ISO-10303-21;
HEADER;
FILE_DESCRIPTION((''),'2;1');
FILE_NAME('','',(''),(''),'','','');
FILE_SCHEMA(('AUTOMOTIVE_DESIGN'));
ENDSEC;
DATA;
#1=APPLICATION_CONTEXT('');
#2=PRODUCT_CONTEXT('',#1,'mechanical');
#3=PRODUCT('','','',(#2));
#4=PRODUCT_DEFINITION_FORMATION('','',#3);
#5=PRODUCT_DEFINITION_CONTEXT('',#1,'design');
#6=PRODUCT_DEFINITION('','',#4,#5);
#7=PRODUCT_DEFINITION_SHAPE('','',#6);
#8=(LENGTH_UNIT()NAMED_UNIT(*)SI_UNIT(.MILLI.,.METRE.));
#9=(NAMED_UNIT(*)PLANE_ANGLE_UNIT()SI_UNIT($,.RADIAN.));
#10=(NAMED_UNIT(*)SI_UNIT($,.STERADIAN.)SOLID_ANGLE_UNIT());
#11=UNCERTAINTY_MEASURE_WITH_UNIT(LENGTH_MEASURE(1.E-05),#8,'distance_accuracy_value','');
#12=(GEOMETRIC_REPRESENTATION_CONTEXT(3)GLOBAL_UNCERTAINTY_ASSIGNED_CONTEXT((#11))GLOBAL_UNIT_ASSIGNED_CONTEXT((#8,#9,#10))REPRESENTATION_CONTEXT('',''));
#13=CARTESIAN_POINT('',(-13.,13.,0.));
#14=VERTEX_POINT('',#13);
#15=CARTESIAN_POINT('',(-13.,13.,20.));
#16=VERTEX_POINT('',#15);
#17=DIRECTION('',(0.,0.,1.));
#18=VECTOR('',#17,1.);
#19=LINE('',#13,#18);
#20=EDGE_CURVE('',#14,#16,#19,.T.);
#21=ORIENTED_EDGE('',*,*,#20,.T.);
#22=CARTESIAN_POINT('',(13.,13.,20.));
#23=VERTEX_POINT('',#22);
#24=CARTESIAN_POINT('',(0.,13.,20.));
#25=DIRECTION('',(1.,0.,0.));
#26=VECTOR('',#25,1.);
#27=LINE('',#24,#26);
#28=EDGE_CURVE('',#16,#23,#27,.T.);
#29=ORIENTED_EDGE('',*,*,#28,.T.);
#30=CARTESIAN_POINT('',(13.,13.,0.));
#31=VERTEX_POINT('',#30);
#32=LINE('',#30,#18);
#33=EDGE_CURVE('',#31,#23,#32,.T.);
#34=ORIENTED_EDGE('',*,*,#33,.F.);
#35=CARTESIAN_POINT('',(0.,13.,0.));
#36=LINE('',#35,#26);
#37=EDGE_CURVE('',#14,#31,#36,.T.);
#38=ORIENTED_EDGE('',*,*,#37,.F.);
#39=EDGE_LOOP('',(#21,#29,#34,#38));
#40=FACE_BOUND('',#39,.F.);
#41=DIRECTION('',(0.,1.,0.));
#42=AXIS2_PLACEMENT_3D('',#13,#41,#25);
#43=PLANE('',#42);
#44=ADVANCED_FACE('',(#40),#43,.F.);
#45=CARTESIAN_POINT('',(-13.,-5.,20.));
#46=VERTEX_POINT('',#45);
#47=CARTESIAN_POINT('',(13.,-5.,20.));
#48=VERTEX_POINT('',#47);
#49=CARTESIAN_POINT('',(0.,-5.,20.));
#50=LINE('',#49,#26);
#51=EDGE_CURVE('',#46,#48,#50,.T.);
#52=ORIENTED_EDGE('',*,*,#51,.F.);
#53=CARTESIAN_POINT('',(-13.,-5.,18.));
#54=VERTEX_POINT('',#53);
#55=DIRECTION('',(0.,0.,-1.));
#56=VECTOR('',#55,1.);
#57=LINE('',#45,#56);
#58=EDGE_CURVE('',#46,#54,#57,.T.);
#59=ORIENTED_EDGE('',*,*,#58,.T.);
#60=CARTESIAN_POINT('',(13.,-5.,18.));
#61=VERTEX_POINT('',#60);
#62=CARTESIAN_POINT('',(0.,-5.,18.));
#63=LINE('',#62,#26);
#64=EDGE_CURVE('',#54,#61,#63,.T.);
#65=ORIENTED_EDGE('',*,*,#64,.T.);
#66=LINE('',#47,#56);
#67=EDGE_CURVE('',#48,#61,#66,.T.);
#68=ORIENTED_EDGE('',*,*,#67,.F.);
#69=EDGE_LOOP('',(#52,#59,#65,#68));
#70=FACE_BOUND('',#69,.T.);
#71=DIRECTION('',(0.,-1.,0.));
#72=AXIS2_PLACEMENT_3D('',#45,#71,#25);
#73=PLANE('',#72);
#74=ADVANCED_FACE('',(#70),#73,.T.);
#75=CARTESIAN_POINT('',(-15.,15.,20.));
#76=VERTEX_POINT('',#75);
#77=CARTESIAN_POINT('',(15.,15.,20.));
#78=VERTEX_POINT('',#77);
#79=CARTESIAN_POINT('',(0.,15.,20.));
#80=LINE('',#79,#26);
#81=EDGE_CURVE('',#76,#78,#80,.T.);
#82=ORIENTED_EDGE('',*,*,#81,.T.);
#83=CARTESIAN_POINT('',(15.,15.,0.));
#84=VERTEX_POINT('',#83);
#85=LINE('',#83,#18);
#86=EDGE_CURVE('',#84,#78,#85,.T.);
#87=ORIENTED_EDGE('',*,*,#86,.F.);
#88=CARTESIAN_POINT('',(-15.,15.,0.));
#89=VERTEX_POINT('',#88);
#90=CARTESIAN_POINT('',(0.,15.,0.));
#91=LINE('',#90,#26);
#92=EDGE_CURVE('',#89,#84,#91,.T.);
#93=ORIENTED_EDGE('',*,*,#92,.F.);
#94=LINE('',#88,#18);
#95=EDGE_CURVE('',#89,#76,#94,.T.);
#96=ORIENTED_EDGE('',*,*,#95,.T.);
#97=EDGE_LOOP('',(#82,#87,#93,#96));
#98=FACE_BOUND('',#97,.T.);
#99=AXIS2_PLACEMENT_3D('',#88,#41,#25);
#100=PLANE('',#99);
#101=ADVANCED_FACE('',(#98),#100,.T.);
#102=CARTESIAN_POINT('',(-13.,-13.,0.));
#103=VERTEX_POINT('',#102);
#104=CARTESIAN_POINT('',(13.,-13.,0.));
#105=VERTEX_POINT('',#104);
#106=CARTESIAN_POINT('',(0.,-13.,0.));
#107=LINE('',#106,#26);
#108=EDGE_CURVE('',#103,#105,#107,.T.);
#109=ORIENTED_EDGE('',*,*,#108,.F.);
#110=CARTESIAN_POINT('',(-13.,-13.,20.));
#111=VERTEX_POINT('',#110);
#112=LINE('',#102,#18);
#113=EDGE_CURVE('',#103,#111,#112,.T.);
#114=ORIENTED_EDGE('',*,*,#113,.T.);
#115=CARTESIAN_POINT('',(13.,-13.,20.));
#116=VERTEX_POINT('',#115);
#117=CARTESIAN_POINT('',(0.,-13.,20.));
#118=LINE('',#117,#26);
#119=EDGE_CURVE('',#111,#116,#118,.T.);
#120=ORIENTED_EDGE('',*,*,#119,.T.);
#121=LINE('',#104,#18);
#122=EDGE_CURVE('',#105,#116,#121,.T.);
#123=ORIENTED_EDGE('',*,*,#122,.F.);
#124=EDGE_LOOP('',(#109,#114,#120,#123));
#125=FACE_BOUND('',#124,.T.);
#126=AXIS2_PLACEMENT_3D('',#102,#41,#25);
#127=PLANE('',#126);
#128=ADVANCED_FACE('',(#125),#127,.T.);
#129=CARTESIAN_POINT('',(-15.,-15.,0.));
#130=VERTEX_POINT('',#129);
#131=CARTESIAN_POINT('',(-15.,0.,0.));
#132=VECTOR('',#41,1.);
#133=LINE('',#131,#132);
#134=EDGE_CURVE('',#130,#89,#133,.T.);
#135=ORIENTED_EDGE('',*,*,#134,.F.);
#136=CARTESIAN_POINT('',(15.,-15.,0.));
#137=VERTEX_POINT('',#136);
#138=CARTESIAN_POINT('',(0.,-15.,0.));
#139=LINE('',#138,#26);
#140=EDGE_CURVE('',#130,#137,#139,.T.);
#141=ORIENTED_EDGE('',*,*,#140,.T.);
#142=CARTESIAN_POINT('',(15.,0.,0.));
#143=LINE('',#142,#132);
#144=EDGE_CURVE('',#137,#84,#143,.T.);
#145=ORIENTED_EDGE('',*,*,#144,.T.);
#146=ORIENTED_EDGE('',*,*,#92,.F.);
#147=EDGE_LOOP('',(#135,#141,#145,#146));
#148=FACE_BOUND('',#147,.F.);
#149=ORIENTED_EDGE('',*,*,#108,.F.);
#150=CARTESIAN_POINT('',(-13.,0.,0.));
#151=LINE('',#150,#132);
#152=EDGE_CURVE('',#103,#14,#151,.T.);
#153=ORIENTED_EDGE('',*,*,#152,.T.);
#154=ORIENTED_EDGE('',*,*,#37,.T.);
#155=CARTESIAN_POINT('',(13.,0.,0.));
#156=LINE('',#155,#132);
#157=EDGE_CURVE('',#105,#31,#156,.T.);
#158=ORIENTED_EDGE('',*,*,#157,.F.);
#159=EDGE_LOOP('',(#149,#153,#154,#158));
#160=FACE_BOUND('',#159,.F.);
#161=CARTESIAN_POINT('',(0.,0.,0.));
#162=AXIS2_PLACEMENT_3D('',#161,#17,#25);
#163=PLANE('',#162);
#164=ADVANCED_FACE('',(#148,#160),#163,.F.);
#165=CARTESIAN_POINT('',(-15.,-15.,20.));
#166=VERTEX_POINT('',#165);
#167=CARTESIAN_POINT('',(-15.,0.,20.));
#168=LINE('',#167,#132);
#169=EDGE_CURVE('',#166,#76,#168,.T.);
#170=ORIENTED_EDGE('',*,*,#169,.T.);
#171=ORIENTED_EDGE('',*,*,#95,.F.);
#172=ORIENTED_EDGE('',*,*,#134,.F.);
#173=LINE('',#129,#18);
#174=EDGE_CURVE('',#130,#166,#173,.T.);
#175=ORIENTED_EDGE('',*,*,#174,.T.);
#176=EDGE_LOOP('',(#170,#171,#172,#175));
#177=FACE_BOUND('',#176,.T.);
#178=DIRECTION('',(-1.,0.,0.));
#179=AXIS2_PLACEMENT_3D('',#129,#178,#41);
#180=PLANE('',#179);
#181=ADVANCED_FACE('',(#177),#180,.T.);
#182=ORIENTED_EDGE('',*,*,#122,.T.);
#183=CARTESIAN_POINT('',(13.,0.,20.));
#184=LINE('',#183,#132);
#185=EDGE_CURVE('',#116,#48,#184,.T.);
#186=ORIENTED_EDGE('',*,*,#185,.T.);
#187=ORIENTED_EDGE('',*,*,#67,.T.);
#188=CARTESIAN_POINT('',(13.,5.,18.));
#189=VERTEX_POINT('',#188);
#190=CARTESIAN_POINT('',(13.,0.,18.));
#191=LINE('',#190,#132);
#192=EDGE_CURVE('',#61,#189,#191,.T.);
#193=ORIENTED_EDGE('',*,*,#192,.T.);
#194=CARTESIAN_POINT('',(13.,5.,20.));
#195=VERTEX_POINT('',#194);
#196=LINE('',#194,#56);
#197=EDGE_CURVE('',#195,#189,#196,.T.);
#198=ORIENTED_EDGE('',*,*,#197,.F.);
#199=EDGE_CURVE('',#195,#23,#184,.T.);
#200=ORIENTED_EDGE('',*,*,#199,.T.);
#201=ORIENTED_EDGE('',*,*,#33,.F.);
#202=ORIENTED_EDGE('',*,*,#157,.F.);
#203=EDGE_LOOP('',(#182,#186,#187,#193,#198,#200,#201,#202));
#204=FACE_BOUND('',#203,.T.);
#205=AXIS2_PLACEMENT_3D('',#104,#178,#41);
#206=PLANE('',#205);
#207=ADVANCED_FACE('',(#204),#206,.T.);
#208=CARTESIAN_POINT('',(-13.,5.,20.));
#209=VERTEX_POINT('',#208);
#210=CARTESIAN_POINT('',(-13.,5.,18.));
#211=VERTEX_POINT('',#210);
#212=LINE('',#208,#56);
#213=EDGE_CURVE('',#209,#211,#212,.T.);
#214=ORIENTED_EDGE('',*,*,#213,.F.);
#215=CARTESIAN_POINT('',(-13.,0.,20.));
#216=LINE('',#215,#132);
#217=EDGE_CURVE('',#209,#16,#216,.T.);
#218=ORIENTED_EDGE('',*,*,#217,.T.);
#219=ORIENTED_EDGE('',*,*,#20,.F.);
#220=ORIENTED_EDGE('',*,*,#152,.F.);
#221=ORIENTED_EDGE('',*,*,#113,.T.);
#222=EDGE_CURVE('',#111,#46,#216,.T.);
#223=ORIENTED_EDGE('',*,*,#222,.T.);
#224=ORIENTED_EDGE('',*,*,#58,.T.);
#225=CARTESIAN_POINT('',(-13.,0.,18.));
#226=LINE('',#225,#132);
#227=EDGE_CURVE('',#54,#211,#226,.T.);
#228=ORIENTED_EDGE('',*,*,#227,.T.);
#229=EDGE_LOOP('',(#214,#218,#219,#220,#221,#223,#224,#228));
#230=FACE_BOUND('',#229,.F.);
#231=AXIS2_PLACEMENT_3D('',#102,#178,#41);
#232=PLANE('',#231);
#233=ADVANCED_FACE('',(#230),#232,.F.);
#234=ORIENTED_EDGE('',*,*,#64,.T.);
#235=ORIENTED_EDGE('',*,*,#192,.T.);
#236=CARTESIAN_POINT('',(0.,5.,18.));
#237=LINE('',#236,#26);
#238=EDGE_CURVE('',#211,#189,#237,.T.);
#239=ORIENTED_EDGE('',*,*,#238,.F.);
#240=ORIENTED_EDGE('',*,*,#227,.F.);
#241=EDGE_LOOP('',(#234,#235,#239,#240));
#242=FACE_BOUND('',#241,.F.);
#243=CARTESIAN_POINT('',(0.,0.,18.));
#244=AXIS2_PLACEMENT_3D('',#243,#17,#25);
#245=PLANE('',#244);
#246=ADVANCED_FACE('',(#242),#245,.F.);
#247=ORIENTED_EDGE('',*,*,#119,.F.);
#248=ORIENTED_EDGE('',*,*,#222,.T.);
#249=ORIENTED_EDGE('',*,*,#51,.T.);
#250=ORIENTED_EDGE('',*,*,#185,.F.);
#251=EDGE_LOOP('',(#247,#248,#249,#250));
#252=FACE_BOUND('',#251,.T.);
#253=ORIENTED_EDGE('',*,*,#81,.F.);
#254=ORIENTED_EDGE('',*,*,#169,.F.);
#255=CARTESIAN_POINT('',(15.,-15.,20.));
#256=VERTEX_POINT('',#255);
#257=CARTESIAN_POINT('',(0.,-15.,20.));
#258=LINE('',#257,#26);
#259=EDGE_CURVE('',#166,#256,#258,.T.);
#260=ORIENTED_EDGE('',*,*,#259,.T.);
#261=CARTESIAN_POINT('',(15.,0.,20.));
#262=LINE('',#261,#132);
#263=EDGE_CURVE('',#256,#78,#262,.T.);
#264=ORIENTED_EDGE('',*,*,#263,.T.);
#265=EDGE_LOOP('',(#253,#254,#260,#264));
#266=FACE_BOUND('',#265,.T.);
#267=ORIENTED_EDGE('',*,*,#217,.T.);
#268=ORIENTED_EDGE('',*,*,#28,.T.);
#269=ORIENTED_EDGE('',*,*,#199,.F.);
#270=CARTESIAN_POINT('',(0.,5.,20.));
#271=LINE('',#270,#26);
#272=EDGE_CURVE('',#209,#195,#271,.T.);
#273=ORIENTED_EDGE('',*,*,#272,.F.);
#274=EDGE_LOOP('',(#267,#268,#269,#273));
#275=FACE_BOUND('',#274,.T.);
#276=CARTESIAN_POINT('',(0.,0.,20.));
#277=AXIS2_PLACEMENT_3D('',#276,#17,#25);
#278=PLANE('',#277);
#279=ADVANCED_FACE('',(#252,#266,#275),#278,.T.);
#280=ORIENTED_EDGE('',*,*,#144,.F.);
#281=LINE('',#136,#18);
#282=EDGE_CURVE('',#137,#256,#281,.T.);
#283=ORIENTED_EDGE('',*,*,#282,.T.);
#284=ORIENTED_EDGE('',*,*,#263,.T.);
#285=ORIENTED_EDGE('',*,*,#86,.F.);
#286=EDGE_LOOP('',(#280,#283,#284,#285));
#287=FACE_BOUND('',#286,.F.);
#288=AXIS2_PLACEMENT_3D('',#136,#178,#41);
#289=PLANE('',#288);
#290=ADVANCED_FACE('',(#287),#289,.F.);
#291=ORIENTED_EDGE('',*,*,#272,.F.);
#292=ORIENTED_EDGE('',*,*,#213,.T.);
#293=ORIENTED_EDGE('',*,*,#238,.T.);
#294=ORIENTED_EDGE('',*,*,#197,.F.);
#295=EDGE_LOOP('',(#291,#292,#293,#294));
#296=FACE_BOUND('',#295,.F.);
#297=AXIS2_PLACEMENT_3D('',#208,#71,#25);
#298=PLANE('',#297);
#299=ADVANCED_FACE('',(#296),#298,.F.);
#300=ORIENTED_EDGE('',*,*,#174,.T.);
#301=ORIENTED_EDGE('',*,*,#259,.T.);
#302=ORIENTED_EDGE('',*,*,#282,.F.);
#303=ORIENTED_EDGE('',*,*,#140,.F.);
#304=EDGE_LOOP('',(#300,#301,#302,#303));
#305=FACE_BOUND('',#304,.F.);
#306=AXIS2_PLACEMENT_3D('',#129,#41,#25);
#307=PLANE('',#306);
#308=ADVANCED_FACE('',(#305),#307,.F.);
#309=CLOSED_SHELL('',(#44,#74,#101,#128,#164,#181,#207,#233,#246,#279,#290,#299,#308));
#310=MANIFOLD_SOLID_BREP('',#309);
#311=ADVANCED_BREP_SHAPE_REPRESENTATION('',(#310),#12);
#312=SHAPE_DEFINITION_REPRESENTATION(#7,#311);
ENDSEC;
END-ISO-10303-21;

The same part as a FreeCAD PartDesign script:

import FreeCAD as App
import Part
import Sketcher
from FreeCAD import Vector
Q = App.Units.Quantity


def add_polygon(sketch, points):
    """Adds a closed chain of lines whose ends are joined by coincident constraints."""
    first, n = sketch.GeometryCount, len(points)
    for a, b in zip(points, points[1:] + points[:1]):
        sketch.addGeometry(Part.LineSegment(App.Vector(*a, 0), App.Vector(*b, 0)), False)
    for i in range(n):
        sketch.addConstraint(Sketcher.Constraint("Coincident", first + i, 2, first + (i + 1) % n, 1))

doc = App.newDocument("Part")
body = doc.addObject("PartDesign::Body", "Body")

# Sketch on XY plane
sketch1 = body.newObject("Sketcher::SketchObject", "Sketch")
sketch1.AttachmentSupport = (doc.getObject("XY_Plane"), [""])
sketch1.MapMode = "FlatFace"
add_polygon(sketch1, [(-15, 15), (-15, -15), (15, -15), (15, 15)])  # lines 0-3
add_polygon(sketch1, [(13, -13), (-13, -13), (-13, 13), (13, 13)])  # lines 4-7
sketch1.addConstraint([
    Sketcher.Constraint("Vertical", 0),
    Sketcher.Constraint("Horizontal", 1),
    Sketcher.Constraint("Vertical", 2),
    Sketcher.Constraint("Horizontal", 3),
    Sketcher.Constraint("Horizontal", 4),
    Sketcher.Constraint("Vertical", 5),
    Sketcher.Constraint("Horizontal", 6),
    Sketcher.Constraint("Vertical", 7),
    Sketcher.Constraint("Symmetric", 0, 2, 2, 2, -1, 1),
    Sketcher.Constraint("Symmetric", 4, 2, 6, 2, -1, 1),
    Sketcher.Constraint("Equal", 3, 0),
    Sketcher.Constraint("Equal", 6, 5),
    Sketcher.Constraint("DistanceX", 1, 1, 1, 2, Q("30 mm")),
    Sketcher.Constraint("DistanceX", 4, 2, 4, 1, Q("26 mm")),
])
pad1 = body.newObject("PartDesign::Pad", "Pad")
pad1.Profile = sketch1
pad1.Length = 20

# Sketch on XY plane
sketch2 = body.newObject("Sketcher::SketchObject", "Sketch001")
sketch2.AttachmentSupport = (doc.getObject("XY_Plane"), [""])
sketch2.MapMode = "FlatFace"
sketch2.AttachmentOffset = App.Placement(Vector(0, 0, 20), App.Rotation())
add_polygon(sketch2, [(-13, 5), (-13, -5), (13, -5), (13, 5)])  # lines 0-3
sketch2.addConstraint([
    Sketcher.Constraint("Vertical", 0),
    Sketcher.Constraint("Horizontal", 1),
    Sketcher.Constraint("Vertical", 2),
    Sketcher.Constraint("Horizontal", 3),
    Sketcher.Constraint("Symmetric", 0, 2, 2, 2, -1, 1),
    Sketcher.Constraint("DistanceX", 1, 1, 1, 2, Q("26 mm")),
    Sketcher.Constraint("DistanceY", 0, 2, 0, 1, Q("10 mm")),
])
pad2 = body.newObject("PartDesign::Pad", "Pad001")
pad2.Profile = sketch2
pad2.Length = 2
pad2.Reversed = True

doc.recompute()
